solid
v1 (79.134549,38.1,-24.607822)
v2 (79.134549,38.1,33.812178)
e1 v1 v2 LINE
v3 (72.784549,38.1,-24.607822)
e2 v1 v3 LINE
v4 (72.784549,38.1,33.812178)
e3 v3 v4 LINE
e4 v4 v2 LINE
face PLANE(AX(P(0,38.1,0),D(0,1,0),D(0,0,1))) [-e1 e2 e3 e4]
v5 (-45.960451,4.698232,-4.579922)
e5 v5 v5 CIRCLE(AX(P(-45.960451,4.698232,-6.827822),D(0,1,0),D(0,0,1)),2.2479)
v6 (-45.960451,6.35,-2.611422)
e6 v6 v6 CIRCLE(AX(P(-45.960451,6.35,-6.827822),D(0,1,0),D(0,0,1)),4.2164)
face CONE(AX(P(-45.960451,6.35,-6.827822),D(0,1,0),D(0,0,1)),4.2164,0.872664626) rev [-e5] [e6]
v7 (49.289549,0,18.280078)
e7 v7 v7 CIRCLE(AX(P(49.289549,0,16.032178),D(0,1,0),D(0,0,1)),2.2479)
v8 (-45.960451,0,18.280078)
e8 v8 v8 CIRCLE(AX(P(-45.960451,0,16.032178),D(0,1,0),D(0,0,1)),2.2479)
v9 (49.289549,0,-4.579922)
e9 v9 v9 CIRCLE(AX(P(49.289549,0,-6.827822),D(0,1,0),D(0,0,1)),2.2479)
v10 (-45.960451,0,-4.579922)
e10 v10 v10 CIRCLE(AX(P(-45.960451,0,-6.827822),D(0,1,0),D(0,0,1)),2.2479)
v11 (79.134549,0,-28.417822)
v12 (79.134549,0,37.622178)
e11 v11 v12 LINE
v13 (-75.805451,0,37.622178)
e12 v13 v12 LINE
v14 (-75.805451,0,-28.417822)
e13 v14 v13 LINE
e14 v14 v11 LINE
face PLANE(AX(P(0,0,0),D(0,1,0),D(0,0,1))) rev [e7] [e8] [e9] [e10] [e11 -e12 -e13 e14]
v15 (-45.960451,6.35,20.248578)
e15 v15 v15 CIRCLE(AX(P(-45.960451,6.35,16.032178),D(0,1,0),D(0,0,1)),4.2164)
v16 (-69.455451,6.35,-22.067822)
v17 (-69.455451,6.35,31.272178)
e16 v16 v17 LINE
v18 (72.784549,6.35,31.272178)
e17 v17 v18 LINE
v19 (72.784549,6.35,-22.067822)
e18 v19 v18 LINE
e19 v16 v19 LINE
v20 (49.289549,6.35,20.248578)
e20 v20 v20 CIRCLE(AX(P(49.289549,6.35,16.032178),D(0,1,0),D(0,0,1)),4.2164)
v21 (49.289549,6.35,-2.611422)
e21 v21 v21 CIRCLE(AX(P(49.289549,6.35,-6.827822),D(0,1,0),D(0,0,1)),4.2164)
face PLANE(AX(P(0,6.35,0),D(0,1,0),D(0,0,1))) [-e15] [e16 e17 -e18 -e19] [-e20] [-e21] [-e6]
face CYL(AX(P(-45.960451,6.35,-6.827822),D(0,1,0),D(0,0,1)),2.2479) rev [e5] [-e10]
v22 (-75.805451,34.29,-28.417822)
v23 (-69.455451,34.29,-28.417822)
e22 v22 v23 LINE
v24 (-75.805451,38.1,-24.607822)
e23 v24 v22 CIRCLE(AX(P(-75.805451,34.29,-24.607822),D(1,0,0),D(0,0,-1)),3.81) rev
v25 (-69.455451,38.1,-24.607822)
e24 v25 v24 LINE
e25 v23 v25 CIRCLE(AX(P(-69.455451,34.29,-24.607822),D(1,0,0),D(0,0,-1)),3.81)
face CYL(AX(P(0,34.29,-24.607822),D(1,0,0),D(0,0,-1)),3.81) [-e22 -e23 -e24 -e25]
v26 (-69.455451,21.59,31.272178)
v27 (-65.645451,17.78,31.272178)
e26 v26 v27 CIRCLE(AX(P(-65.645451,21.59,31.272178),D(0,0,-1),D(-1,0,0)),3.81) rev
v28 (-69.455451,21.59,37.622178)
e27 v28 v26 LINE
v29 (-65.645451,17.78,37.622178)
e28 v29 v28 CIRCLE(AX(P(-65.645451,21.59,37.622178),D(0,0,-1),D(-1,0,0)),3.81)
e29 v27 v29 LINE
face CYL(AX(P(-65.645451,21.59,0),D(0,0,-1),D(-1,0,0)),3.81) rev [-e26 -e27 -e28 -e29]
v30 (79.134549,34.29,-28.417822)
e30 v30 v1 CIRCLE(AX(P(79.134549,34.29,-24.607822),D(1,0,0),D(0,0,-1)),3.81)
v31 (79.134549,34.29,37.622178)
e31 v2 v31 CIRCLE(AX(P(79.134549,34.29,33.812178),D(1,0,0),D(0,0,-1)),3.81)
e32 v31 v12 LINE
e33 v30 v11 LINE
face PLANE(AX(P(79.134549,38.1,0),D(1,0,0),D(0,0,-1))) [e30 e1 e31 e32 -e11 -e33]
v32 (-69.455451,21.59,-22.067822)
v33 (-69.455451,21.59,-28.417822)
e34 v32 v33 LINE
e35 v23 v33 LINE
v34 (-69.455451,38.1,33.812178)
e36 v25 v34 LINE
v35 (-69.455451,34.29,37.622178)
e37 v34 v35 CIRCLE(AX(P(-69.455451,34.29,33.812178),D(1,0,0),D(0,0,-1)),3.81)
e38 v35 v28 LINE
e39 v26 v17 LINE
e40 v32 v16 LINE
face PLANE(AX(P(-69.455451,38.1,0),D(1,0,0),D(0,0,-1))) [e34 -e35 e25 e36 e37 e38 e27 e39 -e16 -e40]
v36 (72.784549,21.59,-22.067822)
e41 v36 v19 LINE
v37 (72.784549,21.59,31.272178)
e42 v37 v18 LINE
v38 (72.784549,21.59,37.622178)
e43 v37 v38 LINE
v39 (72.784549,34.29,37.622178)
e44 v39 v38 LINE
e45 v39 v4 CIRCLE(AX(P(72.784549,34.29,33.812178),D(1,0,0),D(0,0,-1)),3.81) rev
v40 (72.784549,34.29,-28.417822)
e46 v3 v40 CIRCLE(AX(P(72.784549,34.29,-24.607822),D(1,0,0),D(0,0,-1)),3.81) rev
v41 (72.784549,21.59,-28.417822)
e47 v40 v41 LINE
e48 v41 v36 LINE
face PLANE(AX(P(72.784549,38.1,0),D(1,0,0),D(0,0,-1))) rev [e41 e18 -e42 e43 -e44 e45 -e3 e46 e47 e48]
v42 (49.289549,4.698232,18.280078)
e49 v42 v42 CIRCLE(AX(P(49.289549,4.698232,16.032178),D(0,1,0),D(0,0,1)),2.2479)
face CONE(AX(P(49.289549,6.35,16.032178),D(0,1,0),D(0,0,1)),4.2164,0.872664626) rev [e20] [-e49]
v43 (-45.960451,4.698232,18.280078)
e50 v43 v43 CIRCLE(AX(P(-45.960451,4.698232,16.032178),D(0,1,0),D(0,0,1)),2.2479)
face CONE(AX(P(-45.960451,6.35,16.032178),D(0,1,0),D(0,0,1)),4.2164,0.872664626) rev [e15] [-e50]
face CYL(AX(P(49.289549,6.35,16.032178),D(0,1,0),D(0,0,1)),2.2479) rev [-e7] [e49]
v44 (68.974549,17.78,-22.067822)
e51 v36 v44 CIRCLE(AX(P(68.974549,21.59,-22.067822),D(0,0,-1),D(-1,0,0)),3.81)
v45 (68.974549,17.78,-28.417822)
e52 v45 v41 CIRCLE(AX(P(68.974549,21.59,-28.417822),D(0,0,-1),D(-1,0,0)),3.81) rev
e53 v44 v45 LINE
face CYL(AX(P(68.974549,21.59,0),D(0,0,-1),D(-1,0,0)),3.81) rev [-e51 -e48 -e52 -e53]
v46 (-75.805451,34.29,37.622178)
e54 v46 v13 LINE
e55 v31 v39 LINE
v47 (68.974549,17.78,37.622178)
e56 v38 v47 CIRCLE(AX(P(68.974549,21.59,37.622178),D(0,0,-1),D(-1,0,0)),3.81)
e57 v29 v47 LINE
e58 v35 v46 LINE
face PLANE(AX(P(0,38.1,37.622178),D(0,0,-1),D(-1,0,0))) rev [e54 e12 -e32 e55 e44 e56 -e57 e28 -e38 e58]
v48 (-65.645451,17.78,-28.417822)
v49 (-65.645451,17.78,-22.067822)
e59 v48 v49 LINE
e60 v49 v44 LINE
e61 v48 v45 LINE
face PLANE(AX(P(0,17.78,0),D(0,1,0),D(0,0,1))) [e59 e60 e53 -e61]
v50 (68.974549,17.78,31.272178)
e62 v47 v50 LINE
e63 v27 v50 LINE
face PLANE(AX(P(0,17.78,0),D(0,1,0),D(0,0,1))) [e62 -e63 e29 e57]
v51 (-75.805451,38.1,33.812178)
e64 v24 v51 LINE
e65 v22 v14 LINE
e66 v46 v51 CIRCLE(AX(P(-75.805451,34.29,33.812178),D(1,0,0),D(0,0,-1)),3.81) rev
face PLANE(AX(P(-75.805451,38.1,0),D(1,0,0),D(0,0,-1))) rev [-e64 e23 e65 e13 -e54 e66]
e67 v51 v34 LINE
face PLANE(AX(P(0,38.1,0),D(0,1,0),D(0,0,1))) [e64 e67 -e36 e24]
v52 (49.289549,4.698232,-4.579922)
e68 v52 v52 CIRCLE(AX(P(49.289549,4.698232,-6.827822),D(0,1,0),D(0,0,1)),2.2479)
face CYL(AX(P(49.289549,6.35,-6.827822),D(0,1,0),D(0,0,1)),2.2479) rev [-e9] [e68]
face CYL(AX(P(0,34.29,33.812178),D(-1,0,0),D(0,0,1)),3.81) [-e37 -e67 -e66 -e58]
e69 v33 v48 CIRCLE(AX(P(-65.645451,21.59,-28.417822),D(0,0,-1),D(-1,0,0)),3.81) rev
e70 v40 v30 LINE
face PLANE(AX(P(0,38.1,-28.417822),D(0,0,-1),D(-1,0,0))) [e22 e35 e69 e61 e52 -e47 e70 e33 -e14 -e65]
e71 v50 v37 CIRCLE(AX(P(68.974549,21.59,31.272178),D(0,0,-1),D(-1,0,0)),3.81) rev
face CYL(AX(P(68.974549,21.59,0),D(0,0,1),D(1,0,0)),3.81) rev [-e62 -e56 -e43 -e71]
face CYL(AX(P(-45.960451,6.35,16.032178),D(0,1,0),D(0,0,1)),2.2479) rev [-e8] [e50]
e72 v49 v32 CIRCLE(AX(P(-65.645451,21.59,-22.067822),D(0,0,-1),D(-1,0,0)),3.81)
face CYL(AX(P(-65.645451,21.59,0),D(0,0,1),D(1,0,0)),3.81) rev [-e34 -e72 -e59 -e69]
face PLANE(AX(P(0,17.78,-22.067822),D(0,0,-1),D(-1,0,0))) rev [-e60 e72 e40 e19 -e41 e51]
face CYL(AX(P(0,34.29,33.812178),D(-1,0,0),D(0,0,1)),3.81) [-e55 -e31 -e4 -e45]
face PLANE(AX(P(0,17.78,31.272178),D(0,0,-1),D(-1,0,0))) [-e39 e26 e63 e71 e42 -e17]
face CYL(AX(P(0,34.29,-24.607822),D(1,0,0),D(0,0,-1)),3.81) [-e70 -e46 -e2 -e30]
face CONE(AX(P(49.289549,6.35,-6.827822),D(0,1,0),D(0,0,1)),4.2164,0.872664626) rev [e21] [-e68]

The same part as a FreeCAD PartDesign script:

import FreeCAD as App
import Part
import Sketcher

V = App.Vector
Q = App.Units.Quantity


def edges_at(feature, points):
    """Names of the edges that pass closest to the given points."""
    edges = feature.Shape.Edges
    near = lambda p: min(range(len(edges)), key=lambda i: edges[i].distToShape(Part.Vertex(*p))[0])
    return sorted({f"Edge{near(p) + 1}" for p in points})


def add_polygon(sketch, points):
    """Adds a closed chain of lines whose ends are joined by coincident constraints."""
    first, n = sketch.GeometryCount, len(points)
    for a, b in zip(points, points[1:] + points[:1]):
        sketch.addGeometry(Part.LineSegment(App.Vector(*a, 0), App.Vector(*b, 0)), False)
    for i in range(n):
        sketch.addConstraint(Sketcher.Constraint("Coincident", first + i, 2, first + (i + 1) % n, 1))

doc = App.newDocument("Part")
params = doc.addObject("Spreadsheet::Sheet", "Params")
for row, (alias, value) in enumerate([
    ("sketch1_height", "2.6 in"),
    ("sketch1_width", "0.25 in"),
    ("pad1_length", "1.5 in"),
    ("sketch2_height", "2.6 in"),
    ("sketch2_width", "0.25 in"),
    ("pad2_length", "1.5 in"),
    ("sketch3_width", "5.6 in"),
    ("sketch3_height", "2.1 in"),
    ("pad3_length", "0.25 in"),
    ("sketch4_width", "5.6 in"),
    ("sketch4_height", "0.25 in"),
    ("pad4_length", "0.7 in"),
    ("fillet_radius", "0.15 in"),
    ("sketch5_diameter", "0.177 in"),
    ("hole_diameter", "0.177 in"),
    ("hole_csink_diameter", "0.332 in"),
], start=1):
    params.set(f"A{row}", alias)
    params.set(f"B{row}", "=" + value)
    params.setAlias(f"B{row}", alias)

body = doc.addObject("PartDesign::Body", "Body")

# Sketch on XZ plane
sketch1 = doc.addObject("Sketcher::SketchObject", "Sketch")
body.addObject(sketch1)
sketch1.AttachmentSupport = (doc.XZ_Plane, [""])
sketch1.MapMode = "FlatFace"
add_polygon(sketch1, [(72.784549, -28.417822), (72.784549, 37.622178), (79.134549, 37.622178), (79.134549, -28.417822)])  # lines 0-3
sketch1.addConstraint(Sketcher.Constraint("Vertical", 0))
sketch1.addConstraint(Sketcher.Constraint("Horizontal", 1))
sketch1.addConstraint(Sketcher.Constraint("Vertical", 2))
sketch1.addConstraint(Sketcher.Constraint("Horizontal", 3))
sketch1.addConstraint(Sketcher.Constraint("DistanceY", 0, 1, 0, 2, Q("2.6 in")))
sketch1.addConstraint(Sketcher.Constraint("DistanceX", 1, 1, 1, 2, Q("0.25 in")))
sketch1.addConstraint(Sketcher.Constraint("DistanceX", -1, 1, 0, 2, 72.784549))
sketch1.addConstraint(Sketcher.Constraint("DistanceY", -1, 1, 0, 2, 37.622178))
sketch1.setExpression("Constraints[8]", "Params.sketch1_height")
sketch1.setExpression("Constraints[9]", "Params.sketch1_width")
pad1 = doc.addObject("PartDesign::Pad", "Pad")
body.addObject(pad1)
pad1.Profile = sketch1
pad1.setExpression("Length", "Params.pad1_length")
pad1.Reversed = True
body2 = doc.addObject("PartDesign::Body", "Body001")

# Sketch on XZ plane
sketch2 = doc.addObject("Sketcher::SketchObject", "Sketch001")
body2.addObject(sketch2)
sketch2.AttachmentSupport = (doc.getObject("XZ_Plane001"), [""])
sketch2.MapMode = "FlatFace"
add_polygon(sketch2, [(-69.455451, -28.417822), (-75.805451, -28.417822), (-75.805451, 37.622178), (-69.455451, 37.622178)])  # lines 0-3
sketch2.addConstraint(Sketcher.Constraint("Horizontal", 0))
sketch2.addConstraint(Sketcher.Constraint("Vertical", 1))
sketch2.addConstraint(Sketcher.Constraint("Horizontal", 2))
sketch2.addConstraint(Sketcher.Constraint("Vertical", 3))
sketch2.addConstraint(Sketcher.Constraint("DistanceY", 1, 1, 1, 2, Q("2.6 in")))
sketch2.addConstraint(Sketcher.Constraint("DistanceX", 0, 2, 0, 1, Q("0.25 in")))
sketch2.addConstraint(Sketcher.Constraint("DistanceX", 0, 2, -1, 1, 75.805451))
sketch2.addConstraint(Sketcher.Constraint("DistanceY", 0, 2, -1, 1, 28.417822))
sketch2.setExpression("Constraints[8]", "Params.sketch2_height")
sketch2.setExpression("Constraints[9]", "Params.sketch2_width")
pad2 = doc.addObject("PartDesign::Pad", "Pad001")
body2.addObject(pad2)
pad2.Profile = sketch2
pad2.setExpression("Length", "Params.pad2_length")
pad2.Reversed = True
body.AllowCompound = True
doc.recompute()

boolean = doc.addObject("PartDesign::Boolean", "Boolean")
body.addObject(boolean)
boolean.Type = "Fuse"
boolean.addObjects([body2])

# Sketch on XZ plane
sketch3 = doc.addObject("Sketcher::SketchObject", "Sketch002")
body.addObject(sketch3)
sketch3.AttachmentSupport = (doc.XZ_Plane, [""])
sketch3.MapMode = "FlatFace"
add_polygon(sketch3, [(-69.455451, -22.067822), (-69.455451, 31.272178), (72.784549, 31.272178), (72.784549, -22.067822)])  # lines 0-3
sketch3.addConstraint(Sketcher.Constraint("Vertical", 0))
sketch3.addConstraint(Sketcher.Constraint("Horizontal", 1))
sketch3.addConstraint(Sketcher.Constraint("Vertical", 2))
sketch3.addConstraint(Sketcher.Constraint("Horizontal", 3))
sketch3.addConstraint(Sketcher.Constraint("DistanceX", 1, 1, 1, 2, Q("5.6 in")))
sketch3.addConstraint(Sketcher.Constraint("DistanceY", 0, 1, 0, 2, Q("2.1 in")))
sketch3.addConstraint(Sketcher.Constraint("DistanceX", 0, 2, -1, 1, 69.455451))
sketch3.addConstraint(Sketcher.Constraint("DistanceY", -1, 1, 0, 2, 31.272178))
sketch3.setExpression("Constraints[8]", "Params.sketch3_width")
sketch3.setExpression("Constraints[9]", "Params.sketch3_height")
pad3 = doc.addObject("PartDesign::Pad", "Pad002")
body.addObject(pad3)
pad3.Profile = sketch3
pad3.setExpression("Length", "Params.pad3_length")
pad3.Reversed = True

# Sketch on XZ plane
sketch4 = doc.addObject("Sketcher::SketchObject", "Sketch003")
body.addObject(sketch4)
sketch4.AttachmentSupport = (doc.XZ_Plane, [""])
sketch4.MapMode = "FlatFace"
add_polygon(sketch4, [(-69.455451, -28.417822), (-69.455451, -22.067822), (72.784549, -22.067822), (72.784549, -28.417822)])  # lines 0-3
add_polygon(sketch4, [(-69.455451, 31.272178), (-69.455451, 37.622178), (72.784549, 37.622178), (72.784549, 31.272178)])  # lines 4-7
sketch4.addConstraint(Sketcher.Constraint("Vertical", 0))
sketch4.addConstraint(Sketcher.Constraint("Horizontal", 1))
sketch4.addConstraint(Sketcher.Constraint("Vertical", 2))
sketch4.addConstraint(Sketcher.Constraint("Horizontal", 3))
sketch4.addConstraint(Sketcher.Constraint("Vertical", 4))
sketch4.addConstraint(Sketcher.Constraint("Horizontal", 5))
sketch4.addConstraint(Sketcher.Constraint("Vertical", 6))
sketch4.addConstraint(Sketcher.Constraint("Horizontal", 7))
sketch4.addConstraint(Sketcher.Constraint("Vertical", 3, 2, 4, 2))
sketch4.addConstraint(Sketcher.Constraint("Vertical", 2, 2, 5, 2))
sketch4.addConstraint(Sketcher.Constraint("Equal", 2, 4))
sketch4.addConstraint(Sketcher.Constraint("DistanceX", 1, 1, 1, 2, Q("5.6 in")))
sketch4.addConstraint(Sketcher.Constraint("DistanceY", 0, 1, 0, 2, Q("0.25 in")))
sketch4.addConstraint(Sketcher.Constraint("DistanceY", 3, 2, 4, 2, Q("2.6 in")))
sketch4.addConstraint(Sketcher.Constraint("DistanceX", 0, 2, -1, 1, 69.455451))
sketch4.addConstraint(Sketcher.Constraint("DistanceY", 0, 2, -1, 1, 22.067822))
sketch4.setExpression("Constraints[19]", "Params.sketch4_width")
sketch4.setExpression("Constraints[20]", "Params.sketch4_height")
pad4 = doc.addObject("PartDesign::Pad", "Pad003")
body.addObject(pad4)
pad4.Profile = sketch4
pad4.setExpression("Length", "Params.pad4_length")
pad4.Reversed = True
doc.recompute()

fillet = doc.addObject("PartDesign::Fillet", "Fillet")
body.addObject(fillet)
fillet.Base = (pad4, edges_at(pad4, [
    (75.96, 38.1, 37.622),
    (75.96, 38.1, -28.418),
    (-72.63, 38.1, -28.418),
    (-72.63, 38.1, 37.622),
    (-69.455, 17.78, -25.243),
    (72.785, 17.78, -25.243),
    (72.785, 17.78, 34.447),
    (-69.455, 17.78, 34.447),
]))
fillet.setExpression("Radius", "Params.fillet_radius")

# Sketch on XZ plane
sketch5 = doc.addObject("Sketcher::SketchObject", "Sketch004")
body.addObject(sketch5)
sketch5.AttachmentSupport = (doc.XZ_Plane, [""])
sketch5.MapMode = "FlatFace"
sketch5.AttachmentOffset = App.Placement(V(0, 0, -0.25 * 25.4), App.Rotation())
sketch5.addGeometry(Part.Circle(V(-45.960451, 16.032178, 0), V(0, 0, 1), 2.2479), False)
sketch5.addGeometry(Part.Circle(V(-45.960451, -6.827822, 0), V(0, 0, 1), 2.2479), False)
sketch5.addGeometry(Part.Circle(V(49.289549, -6.827822, 0), V(0, 0, 1), 2.2479), False)
sketch5.addGeometry(Part.Circle(V(49.289549, 16.032178, 0), V(0, 0, 1), 2.2479), False)
sketch5.addConstraint(Sketcher.Constraint("Equal", 0, 1))
sketch5.addConstraint(Sketcher.Constraint("Equal", 1, 2))
sketch5.addConstraint(Sketcher.Constraint("Equal", 2, 3))
sketch5.addConstraint(Sketcher.Constraint("Horizontal", 1, 3, 2, 3))
sketch5.addConstraint(Sketcher.Constraint("Horizontal", 0, 3, 3, 3))
sketch5.addConstraint(Sketcher.Constraint("Vertical", 0, 3, 1, 3))
sketch5.addConstraint(Sketcher.Constraint("Vertical", 2, 3, 3, 3))
sketch5.addConstraint(Sketcher.Constraint("Diameter", 0, Q("0.177 in")))
sketch5.addConstraint(Sketcher.Constraint("DistanceY", 1, 3, 0, 3, Q("0.9 in")))
sketch5.addConstraint(Sketcher.Constraint("DistanceX", 1, 3, 2, 3, Q("3.75 in")))
sketch5.addConstraint(Sketcher.Constraint("DistanceX", 0, 3, -1, 1, 45.960451))
sketch5.addConstraint(Sketcher.Constraint("DistanceY", -1, 1, 0, 3, 16.032178))
sketch5.setExpression("Constraints[7]", "Params.sketch5_diameter")
doc.recompute()
hole = doc.addObject("PartDesign::Hole", "Hole")
body.addObject(hole)
hole.Profile = sketch5
hole.ThreadType = "None"
hole.setExpression("Diameter", "Params.hole_diameter")
hole.DepthType = "ThroughAll"
hole.HoleCutType = "Countersink"
hole.setExpression("HoleCutDiameter", "Params.hole_csink_diameter")
hole.HoleCutCountersinkAngle = 100
hole.Reversed = True

doc.recompute()
